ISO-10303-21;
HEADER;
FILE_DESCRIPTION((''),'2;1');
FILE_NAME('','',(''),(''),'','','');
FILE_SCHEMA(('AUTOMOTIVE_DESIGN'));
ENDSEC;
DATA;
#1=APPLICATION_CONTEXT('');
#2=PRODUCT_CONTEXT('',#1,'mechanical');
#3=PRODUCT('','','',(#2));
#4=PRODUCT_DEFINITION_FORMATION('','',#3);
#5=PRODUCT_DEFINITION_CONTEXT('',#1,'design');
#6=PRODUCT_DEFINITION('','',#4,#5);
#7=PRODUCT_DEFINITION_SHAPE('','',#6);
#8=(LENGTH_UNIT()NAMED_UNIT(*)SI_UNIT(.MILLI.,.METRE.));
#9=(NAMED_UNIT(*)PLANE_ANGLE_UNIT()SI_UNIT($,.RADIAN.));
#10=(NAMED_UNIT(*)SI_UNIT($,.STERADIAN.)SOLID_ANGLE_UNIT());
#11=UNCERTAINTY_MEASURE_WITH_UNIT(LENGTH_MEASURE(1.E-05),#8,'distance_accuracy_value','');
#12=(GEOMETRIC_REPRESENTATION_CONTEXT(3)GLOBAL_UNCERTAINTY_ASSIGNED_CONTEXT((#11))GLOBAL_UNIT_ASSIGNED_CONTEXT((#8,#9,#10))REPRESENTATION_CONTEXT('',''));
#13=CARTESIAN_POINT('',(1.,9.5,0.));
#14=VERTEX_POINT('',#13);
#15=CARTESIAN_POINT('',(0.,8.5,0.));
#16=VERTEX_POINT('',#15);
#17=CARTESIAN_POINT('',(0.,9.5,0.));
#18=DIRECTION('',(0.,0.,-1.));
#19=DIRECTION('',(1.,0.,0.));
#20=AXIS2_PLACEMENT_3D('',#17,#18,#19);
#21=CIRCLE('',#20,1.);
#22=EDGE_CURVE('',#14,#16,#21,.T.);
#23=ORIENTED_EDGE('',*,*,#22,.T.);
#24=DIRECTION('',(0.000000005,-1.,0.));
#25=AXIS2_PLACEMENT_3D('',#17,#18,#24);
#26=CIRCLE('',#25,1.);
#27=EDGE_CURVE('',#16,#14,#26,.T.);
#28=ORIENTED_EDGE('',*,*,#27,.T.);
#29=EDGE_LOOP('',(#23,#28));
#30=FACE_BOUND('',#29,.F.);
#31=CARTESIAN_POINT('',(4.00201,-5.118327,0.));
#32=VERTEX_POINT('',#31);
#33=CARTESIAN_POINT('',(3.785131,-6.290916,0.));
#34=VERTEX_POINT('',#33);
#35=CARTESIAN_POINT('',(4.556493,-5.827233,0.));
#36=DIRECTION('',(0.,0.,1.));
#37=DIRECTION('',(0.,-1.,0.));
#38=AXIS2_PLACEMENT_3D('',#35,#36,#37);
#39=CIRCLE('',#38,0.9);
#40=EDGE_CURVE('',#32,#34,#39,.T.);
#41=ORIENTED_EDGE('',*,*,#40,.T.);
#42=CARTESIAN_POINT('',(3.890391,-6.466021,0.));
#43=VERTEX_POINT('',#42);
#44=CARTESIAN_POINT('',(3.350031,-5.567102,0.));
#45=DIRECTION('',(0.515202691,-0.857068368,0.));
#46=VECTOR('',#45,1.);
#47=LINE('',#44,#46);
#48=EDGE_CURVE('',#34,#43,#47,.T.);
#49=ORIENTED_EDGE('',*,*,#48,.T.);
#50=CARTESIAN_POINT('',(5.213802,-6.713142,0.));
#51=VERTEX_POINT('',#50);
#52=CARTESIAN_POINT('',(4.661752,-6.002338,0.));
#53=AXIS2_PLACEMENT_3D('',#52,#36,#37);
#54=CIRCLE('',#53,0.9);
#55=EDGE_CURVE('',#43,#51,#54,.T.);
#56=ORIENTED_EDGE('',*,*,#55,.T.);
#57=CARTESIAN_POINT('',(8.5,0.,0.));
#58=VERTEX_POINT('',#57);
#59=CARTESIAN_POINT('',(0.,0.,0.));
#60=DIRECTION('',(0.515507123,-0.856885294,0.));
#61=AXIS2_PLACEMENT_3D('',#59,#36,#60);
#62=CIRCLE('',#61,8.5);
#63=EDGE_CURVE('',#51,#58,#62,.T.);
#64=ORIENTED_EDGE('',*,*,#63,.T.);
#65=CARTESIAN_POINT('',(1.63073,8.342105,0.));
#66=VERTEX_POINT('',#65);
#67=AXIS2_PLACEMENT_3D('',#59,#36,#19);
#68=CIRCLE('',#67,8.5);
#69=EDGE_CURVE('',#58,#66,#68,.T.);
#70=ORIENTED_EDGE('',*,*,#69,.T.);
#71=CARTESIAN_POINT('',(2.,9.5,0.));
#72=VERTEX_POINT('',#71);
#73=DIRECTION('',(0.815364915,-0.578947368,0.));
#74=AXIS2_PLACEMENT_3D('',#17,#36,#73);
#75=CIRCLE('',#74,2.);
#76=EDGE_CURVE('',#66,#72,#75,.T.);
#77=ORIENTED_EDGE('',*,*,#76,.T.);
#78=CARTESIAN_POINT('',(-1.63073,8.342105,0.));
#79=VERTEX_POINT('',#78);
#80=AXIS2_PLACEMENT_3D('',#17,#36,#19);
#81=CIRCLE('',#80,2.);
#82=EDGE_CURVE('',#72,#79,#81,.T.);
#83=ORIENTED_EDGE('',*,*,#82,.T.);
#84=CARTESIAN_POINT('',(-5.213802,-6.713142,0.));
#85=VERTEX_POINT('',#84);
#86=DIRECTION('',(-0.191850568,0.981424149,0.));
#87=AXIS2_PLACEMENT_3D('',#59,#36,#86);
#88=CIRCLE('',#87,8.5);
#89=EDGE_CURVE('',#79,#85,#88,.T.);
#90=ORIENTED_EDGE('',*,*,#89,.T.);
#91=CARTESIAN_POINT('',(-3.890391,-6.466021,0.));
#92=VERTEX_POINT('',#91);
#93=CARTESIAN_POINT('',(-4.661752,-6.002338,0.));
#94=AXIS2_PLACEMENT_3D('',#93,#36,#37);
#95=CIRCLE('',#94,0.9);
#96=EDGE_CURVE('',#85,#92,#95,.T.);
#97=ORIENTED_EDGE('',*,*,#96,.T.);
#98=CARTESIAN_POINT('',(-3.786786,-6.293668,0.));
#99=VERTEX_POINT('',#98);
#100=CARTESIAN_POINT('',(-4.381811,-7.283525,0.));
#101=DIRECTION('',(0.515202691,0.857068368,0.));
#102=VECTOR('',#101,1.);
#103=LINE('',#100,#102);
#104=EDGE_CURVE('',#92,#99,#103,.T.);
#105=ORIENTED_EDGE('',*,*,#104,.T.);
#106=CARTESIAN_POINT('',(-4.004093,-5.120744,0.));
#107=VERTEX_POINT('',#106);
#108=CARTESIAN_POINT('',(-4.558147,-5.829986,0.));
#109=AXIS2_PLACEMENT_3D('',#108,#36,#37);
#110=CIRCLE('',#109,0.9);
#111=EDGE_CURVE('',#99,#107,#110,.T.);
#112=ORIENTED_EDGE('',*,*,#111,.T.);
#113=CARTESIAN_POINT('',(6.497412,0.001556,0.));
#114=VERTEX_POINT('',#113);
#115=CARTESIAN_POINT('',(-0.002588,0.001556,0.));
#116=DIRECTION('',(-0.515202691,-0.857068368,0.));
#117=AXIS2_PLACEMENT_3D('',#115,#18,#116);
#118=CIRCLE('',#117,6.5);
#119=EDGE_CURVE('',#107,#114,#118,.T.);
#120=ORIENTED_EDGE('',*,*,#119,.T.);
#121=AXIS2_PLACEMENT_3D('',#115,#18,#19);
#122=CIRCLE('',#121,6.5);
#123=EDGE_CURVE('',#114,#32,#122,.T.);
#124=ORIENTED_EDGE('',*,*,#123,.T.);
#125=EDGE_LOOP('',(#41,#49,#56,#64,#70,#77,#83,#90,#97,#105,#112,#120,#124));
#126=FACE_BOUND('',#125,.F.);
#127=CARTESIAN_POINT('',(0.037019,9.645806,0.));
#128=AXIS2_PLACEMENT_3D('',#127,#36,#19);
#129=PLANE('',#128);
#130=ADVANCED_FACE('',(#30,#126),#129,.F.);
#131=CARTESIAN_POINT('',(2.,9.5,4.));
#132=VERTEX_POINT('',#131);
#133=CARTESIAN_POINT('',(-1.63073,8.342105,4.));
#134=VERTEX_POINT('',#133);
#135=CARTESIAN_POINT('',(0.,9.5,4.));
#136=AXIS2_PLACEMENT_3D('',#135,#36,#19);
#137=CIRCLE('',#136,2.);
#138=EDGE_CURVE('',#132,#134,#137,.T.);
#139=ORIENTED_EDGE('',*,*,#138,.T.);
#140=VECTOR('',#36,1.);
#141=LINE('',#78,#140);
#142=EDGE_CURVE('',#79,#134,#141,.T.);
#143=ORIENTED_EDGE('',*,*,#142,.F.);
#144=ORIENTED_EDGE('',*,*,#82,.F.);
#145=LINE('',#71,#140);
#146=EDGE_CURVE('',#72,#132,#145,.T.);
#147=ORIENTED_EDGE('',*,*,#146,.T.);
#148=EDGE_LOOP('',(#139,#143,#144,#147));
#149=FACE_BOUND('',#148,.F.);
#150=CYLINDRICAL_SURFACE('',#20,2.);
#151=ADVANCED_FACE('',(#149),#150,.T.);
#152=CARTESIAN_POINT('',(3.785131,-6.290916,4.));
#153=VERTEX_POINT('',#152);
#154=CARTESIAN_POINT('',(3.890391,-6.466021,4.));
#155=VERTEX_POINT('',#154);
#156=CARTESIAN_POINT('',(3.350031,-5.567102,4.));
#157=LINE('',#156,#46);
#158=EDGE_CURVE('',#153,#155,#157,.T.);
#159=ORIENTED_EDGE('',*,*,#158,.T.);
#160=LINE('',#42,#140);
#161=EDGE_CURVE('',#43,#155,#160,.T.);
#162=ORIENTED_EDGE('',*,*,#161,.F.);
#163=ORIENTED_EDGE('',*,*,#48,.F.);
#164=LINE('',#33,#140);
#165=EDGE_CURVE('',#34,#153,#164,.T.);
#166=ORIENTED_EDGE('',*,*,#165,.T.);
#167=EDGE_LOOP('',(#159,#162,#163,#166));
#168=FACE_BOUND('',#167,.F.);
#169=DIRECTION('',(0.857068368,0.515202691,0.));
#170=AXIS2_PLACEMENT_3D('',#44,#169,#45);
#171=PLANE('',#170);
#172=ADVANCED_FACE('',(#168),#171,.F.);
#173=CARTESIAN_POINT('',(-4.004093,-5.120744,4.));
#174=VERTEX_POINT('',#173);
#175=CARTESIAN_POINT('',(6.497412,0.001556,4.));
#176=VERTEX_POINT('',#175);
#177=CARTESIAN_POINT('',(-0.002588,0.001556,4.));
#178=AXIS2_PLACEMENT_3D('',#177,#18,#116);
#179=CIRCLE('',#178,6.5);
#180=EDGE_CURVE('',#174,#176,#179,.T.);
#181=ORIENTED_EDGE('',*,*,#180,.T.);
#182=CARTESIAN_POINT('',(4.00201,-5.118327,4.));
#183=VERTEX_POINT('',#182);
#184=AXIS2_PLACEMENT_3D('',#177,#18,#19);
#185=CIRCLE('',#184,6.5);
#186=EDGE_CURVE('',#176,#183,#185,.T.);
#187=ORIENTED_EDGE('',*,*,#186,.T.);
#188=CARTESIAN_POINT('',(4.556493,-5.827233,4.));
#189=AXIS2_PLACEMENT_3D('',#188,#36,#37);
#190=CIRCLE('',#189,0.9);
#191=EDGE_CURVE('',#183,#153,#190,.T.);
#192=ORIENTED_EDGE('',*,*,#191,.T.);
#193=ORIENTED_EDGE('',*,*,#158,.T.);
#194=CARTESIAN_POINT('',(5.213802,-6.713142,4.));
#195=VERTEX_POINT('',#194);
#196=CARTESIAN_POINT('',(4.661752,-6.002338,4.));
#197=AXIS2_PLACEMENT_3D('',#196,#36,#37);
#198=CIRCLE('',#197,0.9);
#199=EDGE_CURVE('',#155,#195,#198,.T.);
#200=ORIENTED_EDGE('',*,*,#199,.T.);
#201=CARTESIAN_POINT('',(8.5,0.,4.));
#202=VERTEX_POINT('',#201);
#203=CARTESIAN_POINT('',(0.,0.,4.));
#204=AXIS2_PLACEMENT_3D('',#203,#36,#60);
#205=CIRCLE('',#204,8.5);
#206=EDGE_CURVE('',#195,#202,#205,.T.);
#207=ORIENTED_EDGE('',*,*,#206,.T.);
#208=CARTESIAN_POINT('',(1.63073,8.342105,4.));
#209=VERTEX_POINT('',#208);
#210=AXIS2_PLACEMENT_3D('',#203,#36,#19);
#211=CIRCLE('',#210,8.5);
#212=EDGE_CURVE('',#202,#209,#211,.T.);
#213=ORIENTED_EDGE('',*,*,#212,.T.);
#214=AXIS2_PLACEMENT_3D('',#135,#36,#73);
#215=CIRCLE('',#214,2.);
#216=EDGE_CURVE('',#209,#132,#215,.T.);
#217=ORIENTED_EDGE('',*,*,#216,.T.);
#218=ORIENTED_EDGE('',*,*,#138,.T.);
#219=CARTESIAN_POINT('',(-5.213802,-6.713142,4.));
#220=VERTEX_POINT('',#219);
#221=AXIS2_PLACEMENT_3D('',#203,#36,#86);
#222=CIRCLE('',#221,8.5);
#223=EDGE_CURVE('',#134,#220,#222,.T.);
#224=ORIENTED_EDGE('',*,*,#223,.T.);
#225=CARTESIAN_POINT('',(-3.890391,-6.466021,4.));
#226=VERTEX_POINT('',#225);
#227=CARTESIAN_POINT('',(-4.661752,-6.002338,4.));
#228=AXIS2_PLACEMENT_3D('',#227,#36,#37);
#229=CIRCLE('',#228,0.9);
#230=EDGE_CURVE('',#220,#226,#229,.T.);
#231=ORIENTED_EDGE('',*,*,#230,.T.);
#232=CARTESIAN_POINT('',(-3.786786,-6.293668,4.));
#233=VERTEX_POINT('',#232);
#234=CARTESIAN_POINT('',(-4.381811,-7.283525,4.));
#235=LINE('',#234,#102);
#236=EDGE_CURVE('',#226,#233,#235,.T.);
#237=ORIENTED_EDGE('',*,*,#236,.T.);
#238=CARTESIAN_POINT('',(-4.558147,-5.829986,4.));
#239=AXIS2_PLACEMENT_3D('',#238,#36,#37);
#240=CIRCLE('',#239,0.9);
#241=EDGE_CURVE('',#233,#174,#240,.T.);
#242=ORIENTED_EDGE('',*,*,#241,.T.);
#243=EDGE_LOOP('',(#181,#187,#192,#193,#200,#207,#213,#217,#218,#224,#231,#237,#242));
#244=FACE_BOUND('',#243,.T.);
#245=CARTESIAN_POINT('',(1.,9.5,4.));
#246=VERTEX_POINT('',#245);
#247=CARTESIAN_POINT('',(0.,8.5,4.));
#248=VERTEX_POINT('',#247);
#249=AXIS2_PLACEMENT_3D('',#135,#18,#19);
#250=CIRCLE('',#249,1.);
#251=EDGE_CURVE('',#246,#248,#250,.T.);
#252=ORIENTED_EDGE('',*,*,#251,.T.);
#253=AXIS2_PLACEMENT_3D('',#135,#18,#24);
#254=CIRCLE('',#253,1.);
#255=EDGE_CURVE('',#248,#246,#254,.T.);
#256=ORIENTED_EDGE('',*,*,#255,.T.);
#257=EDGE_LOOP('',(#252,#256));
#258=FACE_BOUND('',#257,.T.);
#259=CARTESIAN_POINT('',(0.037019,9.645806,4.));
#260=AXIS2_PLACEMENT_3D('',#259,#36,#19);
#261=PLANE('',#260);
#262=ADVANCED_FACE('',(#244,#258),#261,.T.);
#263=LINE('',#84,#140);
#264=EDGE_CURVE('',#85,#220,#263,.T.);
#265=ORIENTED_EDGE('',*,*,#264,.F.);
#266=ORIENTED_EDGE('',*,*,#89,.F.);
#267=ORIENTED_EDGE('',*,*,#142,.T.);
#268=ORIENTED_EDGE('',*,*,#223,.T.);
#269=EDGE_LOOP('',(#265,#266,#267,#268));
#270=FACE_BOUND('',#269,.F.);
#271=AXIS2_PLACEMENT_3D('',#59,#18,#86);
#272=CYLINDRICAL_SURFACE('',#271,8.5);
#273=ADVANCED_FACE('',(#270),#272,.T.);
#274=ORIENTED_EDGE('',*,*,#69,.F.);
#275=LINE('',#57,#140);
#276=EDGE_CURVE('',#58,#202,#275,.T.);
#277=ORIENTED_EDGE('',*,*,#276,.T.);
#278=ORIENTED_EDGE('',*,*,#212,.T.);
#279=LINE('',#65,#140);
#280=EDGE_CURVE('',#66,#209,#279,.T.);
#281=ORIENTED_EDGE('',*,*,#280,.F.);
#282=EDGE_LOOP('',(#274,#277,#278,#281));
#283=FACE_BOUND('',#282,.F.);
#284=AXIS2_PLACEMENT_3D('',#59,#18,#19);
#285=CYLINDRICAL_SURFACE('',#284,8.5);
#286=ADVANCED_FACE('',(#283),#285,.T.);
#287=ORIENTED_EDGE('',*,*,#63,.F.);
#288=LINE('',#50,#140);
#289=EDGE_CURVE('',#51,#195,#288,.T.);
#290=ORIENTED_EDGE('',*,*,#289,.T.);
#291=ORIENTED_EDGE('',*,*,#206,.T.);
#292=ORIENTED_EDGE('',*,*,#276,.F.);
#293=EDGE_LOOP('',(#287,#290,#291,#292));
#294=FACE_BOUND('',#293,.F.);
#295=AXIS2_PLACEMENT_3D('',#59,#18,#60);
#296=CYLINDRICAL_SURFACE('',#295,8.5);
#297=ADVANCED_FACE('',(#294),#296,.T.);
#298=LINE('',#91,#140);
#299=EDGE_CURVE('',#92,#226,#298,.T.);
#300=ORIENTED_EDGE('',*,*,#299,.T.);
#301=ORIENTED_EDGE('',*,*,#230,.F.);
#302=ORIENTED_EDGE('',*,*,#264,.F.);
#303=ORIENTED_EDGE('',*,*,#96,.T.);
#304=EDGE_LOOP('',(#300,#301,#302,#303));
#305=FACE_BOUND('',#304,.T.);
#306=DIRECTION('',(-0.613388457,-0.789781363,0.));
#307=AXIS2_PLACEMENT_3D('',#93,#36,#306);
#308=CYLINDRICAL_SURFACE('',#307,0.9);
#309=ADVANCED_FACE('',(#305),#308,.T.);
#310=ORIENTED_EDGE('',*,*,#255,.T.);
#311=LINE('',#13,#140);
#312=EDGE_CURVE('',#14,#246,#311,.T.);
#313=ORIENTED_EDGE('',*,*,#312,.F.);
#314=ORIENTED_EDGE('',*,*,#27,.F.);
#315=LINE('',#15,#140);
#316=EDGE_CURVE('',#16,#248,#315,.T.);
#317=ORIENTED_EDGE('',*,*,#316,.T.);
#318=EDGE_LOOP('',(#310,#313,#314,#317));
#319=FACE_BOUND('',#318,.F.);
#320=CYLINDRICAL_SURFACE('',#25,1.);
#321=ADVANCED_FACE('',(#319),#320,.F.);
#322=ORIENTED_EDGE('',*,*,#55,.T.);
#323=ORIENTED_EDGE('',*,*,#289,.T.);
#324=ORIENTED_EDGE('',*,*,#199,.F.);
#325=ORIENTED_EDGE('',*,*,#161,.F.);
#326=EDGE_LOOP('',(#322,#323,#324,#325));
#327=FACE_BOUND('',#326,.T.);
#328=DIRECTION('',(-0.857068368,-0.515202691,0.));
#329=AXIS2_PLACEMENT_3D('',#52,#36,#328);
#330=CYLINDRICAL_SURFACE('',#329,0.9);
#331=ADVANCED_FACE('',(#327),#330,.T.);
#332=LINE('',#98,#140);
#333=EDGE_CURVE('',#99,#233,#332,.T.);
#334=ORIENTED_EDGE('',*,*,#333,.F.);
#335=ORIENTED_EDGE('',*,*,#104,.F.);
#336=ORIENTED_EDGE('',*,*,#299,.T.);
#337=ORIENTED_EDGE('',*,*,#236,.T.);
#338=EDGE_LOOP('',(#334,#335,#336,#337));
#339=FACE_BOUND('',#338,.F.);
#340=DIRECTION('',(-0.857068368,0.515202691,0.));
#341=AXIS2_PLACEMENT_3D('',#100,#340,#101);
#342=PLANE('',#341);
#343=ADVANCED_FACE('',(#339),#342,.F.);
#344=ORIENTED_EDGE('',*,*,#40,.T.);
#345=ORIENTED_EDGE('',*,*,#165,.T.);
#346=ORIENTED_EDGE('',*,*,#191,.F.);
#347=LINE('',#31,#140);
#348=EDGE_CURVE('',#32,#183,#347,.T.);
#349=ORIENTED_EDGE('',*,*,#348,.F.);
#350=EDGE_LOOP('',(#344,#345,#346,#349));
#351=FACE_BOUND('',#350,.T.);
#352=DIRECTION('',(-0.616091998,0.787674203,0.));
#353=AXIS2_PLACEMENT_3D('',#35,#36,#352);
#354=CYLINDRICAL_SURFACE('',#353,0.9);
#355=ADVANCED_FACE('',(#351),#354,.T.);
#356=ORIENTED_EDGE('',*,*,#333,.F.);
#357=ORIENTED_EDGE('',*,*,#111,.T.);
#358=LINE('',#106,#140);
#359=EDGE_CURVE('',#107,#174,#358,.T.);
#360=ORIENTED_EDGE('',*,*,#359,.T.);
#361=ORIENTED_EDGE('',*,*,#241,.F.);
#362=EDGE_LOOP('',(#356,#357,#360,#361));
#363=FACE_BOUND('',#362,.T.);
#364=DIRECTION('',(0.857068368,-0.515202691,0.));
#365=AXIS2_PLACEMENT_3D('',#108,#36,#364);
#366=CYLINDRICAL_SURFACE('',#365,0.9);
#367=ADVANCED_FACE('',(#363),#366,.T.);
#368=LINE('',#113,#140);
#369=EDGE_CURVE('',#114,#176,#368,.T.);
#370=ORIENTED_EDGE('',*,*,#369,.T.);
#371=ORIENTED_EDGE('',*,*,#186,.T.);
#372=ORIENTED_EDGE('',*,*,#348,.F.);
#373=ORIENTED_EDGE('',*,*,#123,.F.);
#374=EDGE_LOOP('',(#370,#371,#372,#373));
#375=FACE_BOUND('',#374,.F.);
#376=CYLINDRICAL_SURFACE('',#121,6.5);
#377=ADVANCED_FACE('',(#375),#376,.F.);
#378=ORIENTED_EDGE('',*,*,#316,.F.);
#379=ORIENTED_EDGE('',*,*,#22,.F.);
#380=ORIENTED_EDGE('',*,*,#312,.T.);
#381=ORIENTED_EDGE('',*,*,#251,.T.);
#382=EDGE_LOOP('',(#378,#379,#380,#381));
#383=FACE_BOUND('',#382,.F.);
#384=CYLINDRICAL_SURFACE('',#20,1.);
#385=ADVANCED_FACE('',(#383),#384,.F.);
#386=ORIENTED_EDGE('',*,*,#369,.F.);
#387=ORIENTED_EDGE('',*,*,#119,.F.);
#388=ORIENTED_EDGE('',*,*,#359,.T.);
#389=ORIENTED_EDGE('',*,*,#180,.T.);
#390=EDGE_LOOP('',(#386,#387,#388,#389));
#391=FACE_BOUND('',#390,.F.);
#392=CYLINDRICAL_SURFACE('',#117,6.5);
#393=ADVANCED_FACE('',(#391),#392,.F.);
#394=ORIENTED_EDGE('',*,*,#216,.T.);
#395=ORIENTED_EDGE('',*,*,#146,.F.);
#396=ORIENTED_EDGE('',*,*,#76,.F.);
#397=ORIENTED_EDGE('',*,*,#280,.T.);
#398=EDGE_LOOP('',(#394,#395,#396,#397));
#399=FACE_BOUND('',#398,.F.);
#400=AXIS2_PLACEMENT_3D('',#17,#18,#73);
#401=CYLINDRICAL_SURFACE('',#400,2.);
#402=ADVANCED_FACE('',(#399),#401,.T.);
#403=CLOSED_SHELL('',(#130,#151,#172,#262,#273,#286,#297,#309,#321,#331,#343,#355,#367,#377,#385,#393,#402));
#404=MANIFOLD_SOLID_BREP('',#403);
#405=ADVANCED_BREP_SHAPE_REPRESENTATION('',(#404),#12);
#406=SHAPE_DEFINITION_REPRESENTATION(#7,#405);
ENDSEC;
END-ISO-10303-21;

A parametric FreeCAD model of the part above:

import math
import FreeCAD as App
import Part
import Sketcher
from FreeCAD import Vector
Q = App.Units.Quantity


def edges_at(feature, points):
    """Names of the edges that pass closest to the given points."""
    edges = feature.Shape.Edges
    near = lambda p: min(range(len(edges)), key=lambda i: edges[i].distToShape(Part.Vertex(*p))[0])
    return sorted({f"Edge{near(p) + 1}" for p in points})

doc = App.newDocument("Part")
body = doc.addObject("PartDesign::Body", "Body")

# Sketch on XY plane
sketch1 = body.newObject("Sketcher::SketchObject", "Sketch")
sketch1.AttachmentSupport = (doc.getObject("XY_Plane"), [""])
sketch1.MapMode = "FlatFace"
sketch1.addGeometry([
    Part.ArcOfCircle(Part.Circle(Vector(0, 9.5, 0), Vector(0, 0, 1), 2), math.radians(0), math.radians(215)),  # 0
    Part.ArcOfCircle(Part.Circle(Vector(0, 0, 0), Vector(0, 0, 1), 8.5), math.radians(101), math.radians(239)),  # 1
    Part.LineSegment(Vector(-4.4, -7.3, 0), Vector(-3.4, -5.6, 0)),  # 2
    Part.ArcOfCircle(Part.Circle(Vector(0, 0, 0), Vector(0, 0, 1), 6.5), math.radians(0), math.radians(239)),  # 3
    Part.ArcOfCircle(Part.Circle(Vector(0, 0, 0), Vector(0, 0, 1), 6.5), math.radians(-59), math.radians(0)),  # 4
    Part.LineSegment(Vector(3.4, -5.6, 0), Vector(4.4, -7.3, 0)),  # 5
    Part.ArcOfCircle(Part.Circle(Vector(0, 0, 0), Vector(0, 0, 1), 8.5), math.radians(-59), math.radians(0)),  # 6
    Part.ArcOfCircle(Part.Circle(Vector(0, 0, 0), Vector(0, 0, 1), 8.5), math.radians(0), math.radians(79)),  # 7
    Part.ArcOfCircle(Part.Circle(Vector(0, 9.5, 0), Vector(0, 0, 1), 2), math.radians(-35), math.radians(0)),  # 8
    Part.ArcOfCircle(Part.Circle(Vector(0, 9.5, 0), Vector(0, 0, 1), 1), math.radians(-90), math.radians(0)),  # 9
    Part.ArcOfCircle(Part.Circle(Vector(0, 9.5, 0), Vector(0, 0, 1), 1), math.radians(0), math.radians(270)),  # 10
], False)
sketch1.addConstraint([
    Sketcher.Constraint("Coincident", 0, 2, 1, 1),
    Sketcher.Constraint("Coincident", 1, 2, 2, 1),
    Sketcher.Constraint("Coincident", 2, 2, 3, 2),
    Sketcher.Constraint("Tangent", 3, 1, 4, 2),
    Sketcher.Constraint("Coincident", 4, 1, 5, 1),
    Sketcher.Constraint("Coincident", 5, 2, 6, 1),
    Sketcher.Constraint("Tangent", 6, 2, 7, 1),
    Sketcher.Constraint("Coincident", 7, 2, 8, 1),
    Sketcher.Constraint("Tangent", 8, 2, 0, 1),
    Sketcher.Constraint("Tangent", 9, 1, 10, 2),
    Sketcher.Constraint("Coincident", 10, 1, 9, 2),
    Sketcher.Constraint("Coincident", 1, 3, -1, 1),
    Sketcher.Constraint("Coincident", 6, 3, -1, 1),
    Sketcher.Constraint("Coincident", 9, 3, 0, 3),
    Sketcher.Constraint("Equal", 3, 4),
    Sketcher.Constraint("Equal", 1, 6),
    Sketcher.Constraint("Equal", 6, 7),
    Sketcher.Constraint("Equal", 0, 8),
    Sketcher.Constraint("PointOnObject", 0, 3, -2),
    Sketcher.Constraint("PointOnObject", 6, 2, -1),
    Sketcher.Constraint("PointOnObject", 9, 1, -2),
    Sketcher.Constraint("Horizontal", 4, 3, 3, 1),
    Sketcher.Constraint("Horizontal", 1, 2, 5, 2),
    Sketcher.Constraint("Horizontal", 10, 3, 8, 2),
    Sketcher.Constraint("Horizontal", 8, 2, 10, 1),
    Sketcher.Constraint("Radius", 0, Q("2 mm")),
    Sketcher.Constraint("Radius", 9, Q("1 mm")),
    Sketcher.Constraint("Radius", 1, Q("8.5 mm")),
    Sketcher.Constraint("Radius", 3, Q("6.5 mm")),
    Sketcher.Constraint("Distance", 2, Q("1.999999 mm")),
    Sketcher.Constraint("DistanceY", -1, 1, 0, 3, Q("9.5 mm")),
    Sketcher.Constraint("DistanceY", 4, 1, -1, 1, Q("5.567102 mm")),
    Sketcher.Constraint("DistanceX", 5, 2, 3, 1, Q("2.115602 mm")),
    Sketcher.Constraint("DistanceX", 1, 2, -1, 1, Q("4.381811 mm")),
    Sketcher.Constraint("DistanceY", 2, 2, -1, 1, Q("5.569389 mm")),
])
pad1 = body.newObject("PartDesign::Pad", "Pad")
pad1.Profile = sketch1
pad1.Length = 4
doc.recompute()

fillet = body.newObject("PartDesign::Fillet", "Fillet")
fillet.Base = (pad1, edges_at(pad1, [
    (4.382, -7.284, 2),
    (3.35, -5.567, 2),
    (-3.351, -5.569, 2),
    (-4.382, -7.284, 2),
]))
fillet.Radius = 0.9

doc.recompute()
